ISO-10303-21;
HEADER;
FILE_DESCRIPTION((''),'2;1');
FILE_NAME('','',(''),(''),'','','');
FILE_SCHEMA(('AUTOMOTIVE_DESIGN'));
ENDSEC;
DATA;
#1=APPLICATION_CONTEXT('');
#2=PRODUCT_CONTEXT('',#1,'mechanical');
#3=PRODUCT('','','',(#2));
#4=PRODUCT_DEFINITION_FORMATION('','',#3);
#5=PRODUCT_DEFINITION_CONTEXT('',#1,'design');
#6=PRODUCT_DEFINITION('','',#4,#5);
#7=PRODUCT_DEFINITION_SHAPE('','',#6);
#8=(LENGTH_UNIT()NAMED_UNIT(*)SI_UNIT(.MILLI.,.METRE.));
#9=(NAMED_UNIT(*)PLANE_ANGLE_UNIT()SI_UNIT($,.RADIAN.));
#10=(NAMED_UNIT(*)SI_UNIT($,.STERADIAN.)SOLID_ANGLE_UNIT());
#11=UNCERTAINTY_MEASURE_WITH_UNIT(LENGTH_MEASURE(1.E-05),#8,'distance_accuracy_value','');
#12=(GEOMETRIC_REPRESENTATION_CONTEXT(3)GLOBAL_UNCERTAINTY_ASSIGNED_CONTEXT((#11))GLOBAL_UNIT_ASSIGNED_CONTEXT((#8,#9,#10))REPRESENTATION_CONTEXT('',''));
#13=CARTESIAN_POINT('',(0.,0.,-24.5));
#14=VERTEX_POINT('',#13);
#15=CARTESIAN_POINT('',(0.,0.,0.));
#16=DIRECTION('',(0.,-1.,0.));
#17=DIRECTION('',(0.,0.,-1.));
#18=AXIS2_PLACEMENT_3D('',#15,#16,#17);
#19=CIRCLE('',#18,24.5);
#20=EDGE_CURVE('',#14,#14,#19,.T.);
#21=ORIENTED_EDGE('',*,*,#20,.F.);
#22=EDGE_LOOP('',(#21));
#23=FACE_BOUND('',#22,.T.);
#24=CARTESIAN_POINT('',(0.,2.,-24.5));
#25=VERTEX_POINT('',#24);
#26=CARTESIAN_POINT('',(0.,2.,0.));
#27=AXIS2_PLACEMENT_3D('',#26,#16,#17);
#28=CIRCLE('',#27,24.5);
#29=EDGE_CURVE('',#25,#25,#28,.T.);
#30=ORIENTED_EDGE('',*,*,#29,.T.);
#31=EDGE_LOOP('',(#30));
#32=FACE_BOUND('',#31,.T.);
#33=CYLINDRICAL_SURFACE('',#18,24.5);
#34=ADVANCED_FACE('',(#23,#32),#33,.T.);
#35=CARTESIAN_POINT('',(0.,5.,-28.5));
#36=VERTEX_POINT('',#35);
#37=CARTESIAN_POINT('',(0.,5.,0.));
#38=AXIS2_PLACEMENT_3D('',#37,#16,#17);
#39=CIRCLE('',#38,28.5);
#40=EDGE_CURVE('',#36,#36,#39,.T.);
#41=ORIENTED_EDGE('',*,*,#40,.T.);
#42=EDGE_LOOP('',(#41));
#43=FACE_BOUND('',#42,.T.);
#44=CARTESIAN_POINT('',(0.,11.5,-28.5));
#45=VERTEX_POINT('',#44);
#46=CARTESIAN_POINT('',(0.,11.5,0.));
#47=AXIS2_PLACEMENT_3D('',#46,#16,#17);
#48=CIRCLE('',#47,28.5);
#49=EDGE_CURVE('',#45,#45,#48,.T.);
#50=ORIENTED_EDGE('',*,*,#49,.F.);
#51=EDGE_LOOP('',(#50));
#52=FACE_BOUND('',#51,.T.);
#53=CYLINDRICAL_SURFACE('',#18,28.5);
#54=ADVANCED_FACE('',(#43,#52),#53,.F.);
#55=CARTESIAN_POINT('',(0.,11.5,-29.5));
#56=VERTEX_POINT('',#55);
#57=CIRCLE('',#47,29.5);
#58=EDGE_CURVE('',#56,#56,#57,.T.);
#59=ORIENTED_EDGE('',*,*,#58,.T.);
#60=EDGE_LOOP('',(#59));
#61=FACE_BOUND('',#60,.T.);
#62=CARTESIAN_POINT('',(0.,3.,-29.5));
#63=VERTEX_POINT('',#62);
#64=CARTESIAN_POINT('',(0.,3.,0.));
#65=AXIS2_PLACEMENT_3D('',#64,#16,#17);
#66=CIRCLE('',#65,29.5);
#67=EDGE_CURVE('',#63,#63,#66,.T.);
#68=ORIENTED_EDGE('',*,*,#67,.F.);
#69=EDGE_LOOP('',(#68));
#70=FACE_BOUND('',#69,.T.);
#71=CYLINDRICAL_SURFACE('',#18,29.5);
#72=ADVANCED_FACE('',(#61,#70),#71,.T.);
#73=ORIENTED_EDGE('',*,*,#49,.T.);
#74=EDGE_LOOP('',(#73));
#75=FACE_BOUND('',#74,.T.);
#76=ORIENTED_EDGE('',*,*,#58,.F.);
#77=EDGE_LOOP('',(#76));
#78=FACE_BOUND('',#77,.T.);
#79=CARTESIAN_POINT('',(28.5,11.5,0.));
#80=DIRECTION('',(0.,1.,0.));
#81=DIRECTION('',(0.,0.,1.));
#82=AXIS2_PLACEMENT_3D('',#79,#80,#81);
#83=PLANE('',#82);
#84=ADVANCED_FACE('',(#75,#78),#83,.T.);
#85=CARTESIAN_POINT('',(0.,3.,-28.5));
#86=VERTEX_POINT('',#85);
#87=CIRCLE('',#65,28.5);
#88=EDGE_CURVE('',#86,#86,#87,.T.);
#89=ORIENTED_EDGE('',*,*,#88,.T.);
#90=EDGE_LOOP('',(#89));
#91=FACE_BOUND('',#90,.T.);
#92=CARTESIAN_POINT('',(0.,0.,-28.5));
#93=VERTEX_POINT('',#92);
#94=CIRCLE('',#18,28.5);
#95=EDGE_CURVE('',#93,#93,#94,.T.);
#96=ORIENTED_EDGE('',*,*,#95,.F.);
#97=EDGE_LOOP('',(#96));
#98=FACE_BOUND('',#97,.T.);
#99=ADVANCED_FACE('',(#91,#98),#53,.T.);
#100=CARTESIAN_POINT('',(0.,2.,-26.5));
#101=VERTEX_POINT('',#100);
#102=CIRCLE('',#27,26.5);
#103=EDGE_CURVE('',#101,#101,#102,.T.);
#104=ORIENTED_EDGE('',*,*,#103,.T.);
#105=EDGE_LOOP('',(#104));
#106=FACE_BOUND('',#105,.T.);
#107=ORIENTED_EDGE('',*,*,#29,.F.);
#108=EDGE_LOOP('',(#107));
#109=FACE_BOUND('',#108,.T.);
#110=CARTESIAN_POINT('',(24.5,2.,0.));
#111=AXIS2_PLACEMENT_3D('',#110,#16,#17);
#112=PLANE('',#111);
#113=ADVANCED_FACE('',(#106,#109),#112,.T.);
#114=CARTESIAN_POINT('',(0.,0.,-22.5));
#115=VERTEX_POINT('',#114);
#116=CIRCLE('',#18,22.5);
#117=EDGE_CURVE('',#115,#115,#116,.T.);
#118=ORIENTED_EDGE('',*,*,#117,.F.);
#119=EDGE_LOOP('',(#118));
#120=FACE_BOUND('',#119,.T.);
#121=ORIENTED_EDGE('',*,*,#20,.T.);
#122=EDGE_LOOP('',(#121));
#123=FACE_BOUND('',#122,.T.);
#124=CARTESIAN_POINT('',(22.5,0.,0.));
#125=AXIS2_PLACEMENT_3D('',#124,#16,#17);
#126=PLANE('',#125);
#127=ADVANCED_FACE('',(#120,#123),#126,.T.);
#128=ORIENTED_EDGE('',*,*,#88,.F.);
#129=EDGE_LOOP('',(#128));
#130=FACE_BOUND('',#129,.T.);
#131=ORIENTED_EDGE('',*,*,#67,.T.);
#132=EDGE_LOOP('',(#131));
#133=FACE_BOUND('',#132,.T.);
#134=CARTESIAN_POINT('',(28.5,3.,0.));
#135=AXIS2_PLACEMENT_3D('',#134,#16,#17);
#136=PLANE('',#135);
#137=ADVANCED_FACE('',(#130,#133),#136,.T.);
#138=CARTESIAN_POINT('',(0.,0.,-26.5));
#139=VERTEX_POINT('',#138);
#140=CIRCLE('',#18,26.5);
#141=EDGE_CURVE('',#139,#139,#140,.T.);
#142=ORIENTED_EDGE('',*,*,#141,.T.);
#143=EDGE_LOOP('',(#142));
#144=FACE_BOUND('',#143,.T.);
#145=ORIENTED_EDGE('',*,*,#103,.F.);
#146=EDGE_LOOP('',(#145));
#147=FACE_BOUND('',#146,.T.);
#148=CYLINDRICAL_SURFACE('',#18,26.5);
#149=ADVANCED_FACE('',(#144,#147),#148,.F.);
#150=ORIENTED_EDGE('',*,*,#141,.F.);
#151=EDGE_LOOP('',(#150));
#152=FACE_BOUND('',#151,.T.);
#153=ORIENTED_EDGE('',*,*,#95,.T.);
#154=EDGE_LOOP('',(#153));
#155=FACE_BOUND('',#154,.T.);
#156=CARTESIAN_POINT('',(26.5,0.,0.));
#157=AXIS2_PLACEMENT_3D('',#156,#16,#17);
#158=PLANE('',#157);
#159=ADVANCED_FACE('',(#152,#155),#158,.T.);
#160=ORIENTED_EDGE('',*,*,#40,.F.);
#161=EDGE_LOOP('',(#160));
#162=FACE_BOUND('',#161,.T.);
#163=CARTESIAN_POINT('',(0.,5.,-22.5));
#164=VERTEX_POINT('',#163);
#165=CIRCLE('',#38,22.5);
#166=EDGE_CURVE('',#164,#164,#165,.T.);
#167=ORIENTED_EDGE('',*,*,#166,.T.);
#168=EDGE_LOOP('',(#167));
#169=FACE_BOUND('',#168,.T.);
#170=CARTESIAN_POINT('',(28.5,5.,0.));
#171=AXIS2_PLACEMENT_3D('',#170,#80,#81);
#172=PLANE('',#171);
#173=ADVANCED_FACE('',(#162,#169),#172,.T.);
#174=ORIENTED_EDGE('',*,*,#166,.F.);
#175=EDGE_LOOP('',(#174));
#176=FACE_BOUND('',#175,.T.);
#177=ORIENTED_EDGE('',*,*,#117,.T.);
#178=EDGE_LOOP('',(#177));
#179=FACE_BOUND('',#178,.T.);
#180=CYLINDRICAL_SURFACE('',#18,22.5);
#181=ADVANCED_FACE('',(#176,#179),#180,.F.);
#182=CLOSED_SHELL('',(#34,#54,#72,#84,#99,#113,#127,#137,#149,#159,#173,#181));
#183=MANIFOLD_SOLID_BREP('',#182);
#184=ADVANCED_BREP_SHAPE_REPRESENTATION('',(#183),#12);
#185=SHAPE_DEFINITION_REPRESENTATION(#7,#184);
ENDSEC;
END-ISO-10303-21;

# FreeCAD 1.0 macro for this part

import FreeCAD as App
import Part
import Sketcher
from FreeCAD import Vector

doc = App.newDocument("Part")
body = doc.addObject("PartDesign::Body", "Body")

sketch1 = doc.addObject("Sketcher::SketchObject", "Sketch")
body.addObject(sketch1)
sketch1.AttachmentSupport = (doc.XY_Plane, [""])
sketch1.MapMode = "FlatFace"
sketch1.addGeometry([
    Part.LineSegment(Vector(28.5, 0, 0), Vector(28.5, 3, 0)),
    Part.LineSegment(Vector(28.5, 3, 0), Vector(29.5, 3, 0)),
    Part.LineSegment(Vector(29.5, 3, 0), Vector(29.5, 11.5, 0)),
    Part.LineSegment(Vector(29.5, 11.5, 0), Vector(28.5, 11.5, 0)),
    Part.LineSegment(Vector(28.5, 11.5, 0), Vector(28.5, 5, 0)),
    Part.LineSegment(Vector(28.5, 5, 0), Vector(22.5, 5, 0)),
    Part.LineSegment(Vector(22.5, 5, 0), Vector(22.5, 0, 0)),
    Part.LineSegment(Vector(22.5, 0, 0), Vector(24.5, 0, 0)),
    Part.LineSegment(Vector(24.5, 0, 0), Vector(24.5, 2, 0)),
    Part.LineSegment(Vector(24.5, 2, 0), Vector(26.5, 2, 0)),
    Part.LineSegment(Vector(26.5, 2, 0), Vector(26.5, 0, 0)),
    Part.LineSegment(Vector(26.5, 0, 0), Vector(28.5, 0, 0)),
], False)
sketch1.addConstraint([
    Sketcher.Constraint("Coincident", 0, 2, 1, 1),
    Sketcher.Constraint("Coincident", 1, 2, 2, 1),
    Sketcher.Constraint("Coincident", 2, 2, 3, 1),
    Sketcher.Constraint("Coincident", 3, 2, 4, 1),
    Sketcher.Constraint("Coincident", 4, 2, 5, 1),
    Sketcher.Constraint("Coincident", 5, 2, 6, 1),
    Sketcher.Constraint("Coincident", 6, 2, 7, 1),
    Sketcher.Constraint("Coincident", 7, 2, 8, 1),
    Sketcher.Constraint("Coincident", 8, 2, 9, 1),
    Sketcher.Constraint("Coincident", 9, 2, 10, 1),
    Sketcher.Constraint("Coincident", 10, 2, 11, 1),
    Sketcher.Constraint("Coincident", 11, 2, 0, 1),
    Sketcher.Constraint("Vertical", 0),
    Sketcher.Constraint("Horizontal", 1),
    Sketcher.Constraint("Vertical", 2),
    Sketcher.Constraint("Horizontal", 3),
    Sketcher.Constraint("Vertical", 4),
    Sketcher.Constraint("Horizontal", 5),
    Sketcher.Constraint("Vertical", 6),
    Sketcher.Constraint("Horizontal", 7),
    Sketcher.Constraint("Vertical", 8),
    Sketcher.Constraint("Horizontal", 9),
    Sketcher.Constraint("Vertical", 10),
    Sketcher.Constraint("Horizontal", 11),
    Sketcher.Constraint("PointOnObject", 6, 2, -1),
    Sketcher.Constraint("PointOnObject", 10, 2, -1),
    Sketcher.Constraint("Vertical", 0, 2, 3, 2),
    Sketcher.Constraint("Equal", 7, 9),
    Sketcher.Constraint("Equal", 9, 11),
    Sketcher.Constraint("Equal", 11, 8),
    Sketcher.Constraint("DistanceX", 1, 1, 1, 2, 1.0),
    Sketcher.Constraint("DistanceX", 5, 2, 5, 1, 6.0),
    Sketcher.Constraint("DistanceY", 0, 1, 0, 2, 3.0),
    Sketcher.Constraint("DistanceY", 6, 2, 6, 1, 5.0),
    Sketcher.Constraint("DistanceY", 2, 1, 2, 2, 8.5),
    Sketcher.Constraint("DistanceX", -1, 1, 0, 2, 28.5),
])
revolution = doc.addObject("PartDesign::Revolution", "Revolution")
body.addObject(revolution)
revolution.Profile = sketch1
revolution.ReferenceAxis = (sketch1, ["V_Axis"])
revolution.Angle = 360

doc.recompute()
